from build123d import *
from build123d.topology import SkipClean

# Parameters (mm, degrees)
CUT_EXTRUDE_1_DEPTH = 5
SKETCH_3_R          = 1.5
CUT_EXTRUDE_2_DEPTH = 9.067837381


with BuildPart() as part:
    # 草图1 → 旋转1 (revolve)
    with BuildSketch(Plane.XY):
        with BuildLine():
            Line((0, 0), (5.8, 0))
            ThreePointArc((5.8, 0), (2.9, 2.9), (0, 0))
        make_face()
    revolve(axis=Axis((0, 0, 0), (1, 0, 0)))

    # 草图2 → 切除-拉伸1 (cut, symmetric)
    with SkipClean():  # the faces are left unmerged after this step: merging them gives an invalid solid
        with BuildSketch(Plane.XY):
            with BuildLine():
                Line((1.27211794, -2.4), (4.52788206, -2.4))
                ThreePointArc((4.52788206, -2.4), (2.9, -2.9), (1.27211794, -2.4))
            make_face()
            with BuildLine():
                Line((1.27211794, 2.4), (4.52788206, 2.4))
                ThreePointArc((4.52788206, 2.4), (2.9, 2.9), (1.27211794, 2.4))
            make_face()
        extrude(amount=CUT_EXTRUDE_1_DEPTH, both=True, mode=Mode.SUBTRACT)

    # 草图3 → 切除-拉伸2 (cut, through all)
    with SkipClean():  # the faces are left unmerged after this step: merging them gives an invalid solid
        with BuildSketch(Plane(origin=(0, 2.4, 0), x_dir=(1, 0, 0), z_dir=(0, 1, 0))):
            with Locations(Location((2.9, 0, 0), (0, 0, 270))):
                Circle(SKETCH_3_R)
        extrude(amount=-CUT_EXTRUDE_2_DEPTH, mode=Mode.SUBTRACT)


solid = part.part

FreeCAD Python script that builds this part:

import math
import FreeCAD as App
import Part
import Sketcher

V = App.Vector
Q = App.Units.Quantity

doc = App.newDocument("Part")
body = doc.addObject("PartDesign::Body", "Body")

sketch1 = body.newObject("Sketcher::SketchObject", "Sketch")
sketch1.AttachmentSupport = (doc.getObject("XY_Plane"), [""])
sketch1.MapMode = "FlatFace"
sketch1.addGeometry([
    Part.LineSegment(V(0, 0, 0), V(5.8, 0, 0)),
    Part.ArcOfCircle(Part.Circle(V(2.9, 0, 0), V(0, 0, 1), 2.9), math.radians(0), math.radians(180)),
], False)
sketch1.addConstraint([
    Sketcher.Constraint("Coincident", 0, 1, 1, 2),
    Sketcher.Constraint("Coincident", 1, 1, 0, 2),
    Sketcher.Constraint("Horizontal", 0),
    Sketcher.Constraint("Coincident", 0, 1, -1, 1),
    Sketcher.Constraint("PointOnObject", 1, 3, -1),
    Sketcher.Constraint("Radius", 1, Q("2.9 mm")),
])
revolution = body.newObject("PartDesign::Revolution", "Revolution")
revolution.Profile = sketch1
revolution.ReferenceAxis = (sketch1, ["H_Axis"])
revolution.Angle = 360

sketch2 = body.newObject("Sketcher::SketchObject", "Sketch001")
sketch2.AttachmentSupport = (doc.getObject("XY_Plane"), [""])
sketch2.MapMode = "FlatFace"
sketch2.addGeometry([
    Part.LineSegment(V(4.527882, -2.4, 0), V(1.272118, -2.4, 0)),
    Part.ArcOfCircle(Part.Circle(V(2.9, 0, 0), V(0, 0, 1), 2.9), math.radians(-124.148424), math.radians(-55.851576)),
    Part.LineSegment(V(1.272118, 2.4, 0), V(4.527882, 2.4, 0)),
    Part.ArcOfCircle(Part.Circle(V(2.9, 0, 0), V(0, 0, 1), 2.9), math.radians(55.851576), math.radians(124.148424)),
], False)
sketch2.addConstraint([
    Sketcher.Constraint("Coincident", 0, 1, 1, 2),
    Sketcher.Constraint("Coincident", 1, 1, 0, 2),
    Sketcher.Constraint("Coincident", 2, 1, 3, 2),
    Sketcher.Constraint("Coincident", 3, 1, 2, 2),
    Sketcher.Constraint("Horizontal", 0),
    Sketcher.Constraint("Horizontal", 2),
    Sketcher.Constraint("Coincident", 3, 3, 1, 3),
    Sketcher.Constraint("Equal", 1, 3),
    Sketcher.Constraint("Symmetric", 1, 1, 2, 1, -1),
    Sketcher.Constraint("Radius", 1, Q("2.9 mm")),
    Sketcher.Constraint("DistanceX", -1, 1, 1, 3, Q("2.9 mm")),
    Sketcher.Constraint("DistanceY", 0, 1, -1, 1, Q("2.4 mm")),
])
pocket1 = body.newObject("PartDesign::Pocket", "Pocket")
pocket1.Profile = sketch2
pocket1.Length = 10
pocket1.Midplane = True

sketch3 = body.newObject("Sketcher::SketchObject", "Sketch002")
sketch3.AttachmentSupport = (doc.getObject("XZ_Plane"), [""])
sketch3.MapMode = "FlatFace"
sketch3.AttachmentOffset = App.Placement(V(0, 0, -2.4), App.Rotation())
sketch3.addGeometry(Part.Circle(V(2.9, 0, 0), V(0, 0, 1), 1.5), False)
sketch3.addConstraint([
    Sketcher.Constraint("PointOnObject", 0, 3, -1),
    Sketcher.Constraint("Diameter", 0, Q("3 mm")),
    Sketcher.Constraint("DistanceX", -1, 1, 0, 3, Q("2.9 mm")),
])
pocket2 = body.newObject("PartDesign::Pocket", "Pocket001")
pocket2.Profile = sketch3
pocket2.Type = "ThroughAll"
pocket2.Reversed = True

doc.recompute()
